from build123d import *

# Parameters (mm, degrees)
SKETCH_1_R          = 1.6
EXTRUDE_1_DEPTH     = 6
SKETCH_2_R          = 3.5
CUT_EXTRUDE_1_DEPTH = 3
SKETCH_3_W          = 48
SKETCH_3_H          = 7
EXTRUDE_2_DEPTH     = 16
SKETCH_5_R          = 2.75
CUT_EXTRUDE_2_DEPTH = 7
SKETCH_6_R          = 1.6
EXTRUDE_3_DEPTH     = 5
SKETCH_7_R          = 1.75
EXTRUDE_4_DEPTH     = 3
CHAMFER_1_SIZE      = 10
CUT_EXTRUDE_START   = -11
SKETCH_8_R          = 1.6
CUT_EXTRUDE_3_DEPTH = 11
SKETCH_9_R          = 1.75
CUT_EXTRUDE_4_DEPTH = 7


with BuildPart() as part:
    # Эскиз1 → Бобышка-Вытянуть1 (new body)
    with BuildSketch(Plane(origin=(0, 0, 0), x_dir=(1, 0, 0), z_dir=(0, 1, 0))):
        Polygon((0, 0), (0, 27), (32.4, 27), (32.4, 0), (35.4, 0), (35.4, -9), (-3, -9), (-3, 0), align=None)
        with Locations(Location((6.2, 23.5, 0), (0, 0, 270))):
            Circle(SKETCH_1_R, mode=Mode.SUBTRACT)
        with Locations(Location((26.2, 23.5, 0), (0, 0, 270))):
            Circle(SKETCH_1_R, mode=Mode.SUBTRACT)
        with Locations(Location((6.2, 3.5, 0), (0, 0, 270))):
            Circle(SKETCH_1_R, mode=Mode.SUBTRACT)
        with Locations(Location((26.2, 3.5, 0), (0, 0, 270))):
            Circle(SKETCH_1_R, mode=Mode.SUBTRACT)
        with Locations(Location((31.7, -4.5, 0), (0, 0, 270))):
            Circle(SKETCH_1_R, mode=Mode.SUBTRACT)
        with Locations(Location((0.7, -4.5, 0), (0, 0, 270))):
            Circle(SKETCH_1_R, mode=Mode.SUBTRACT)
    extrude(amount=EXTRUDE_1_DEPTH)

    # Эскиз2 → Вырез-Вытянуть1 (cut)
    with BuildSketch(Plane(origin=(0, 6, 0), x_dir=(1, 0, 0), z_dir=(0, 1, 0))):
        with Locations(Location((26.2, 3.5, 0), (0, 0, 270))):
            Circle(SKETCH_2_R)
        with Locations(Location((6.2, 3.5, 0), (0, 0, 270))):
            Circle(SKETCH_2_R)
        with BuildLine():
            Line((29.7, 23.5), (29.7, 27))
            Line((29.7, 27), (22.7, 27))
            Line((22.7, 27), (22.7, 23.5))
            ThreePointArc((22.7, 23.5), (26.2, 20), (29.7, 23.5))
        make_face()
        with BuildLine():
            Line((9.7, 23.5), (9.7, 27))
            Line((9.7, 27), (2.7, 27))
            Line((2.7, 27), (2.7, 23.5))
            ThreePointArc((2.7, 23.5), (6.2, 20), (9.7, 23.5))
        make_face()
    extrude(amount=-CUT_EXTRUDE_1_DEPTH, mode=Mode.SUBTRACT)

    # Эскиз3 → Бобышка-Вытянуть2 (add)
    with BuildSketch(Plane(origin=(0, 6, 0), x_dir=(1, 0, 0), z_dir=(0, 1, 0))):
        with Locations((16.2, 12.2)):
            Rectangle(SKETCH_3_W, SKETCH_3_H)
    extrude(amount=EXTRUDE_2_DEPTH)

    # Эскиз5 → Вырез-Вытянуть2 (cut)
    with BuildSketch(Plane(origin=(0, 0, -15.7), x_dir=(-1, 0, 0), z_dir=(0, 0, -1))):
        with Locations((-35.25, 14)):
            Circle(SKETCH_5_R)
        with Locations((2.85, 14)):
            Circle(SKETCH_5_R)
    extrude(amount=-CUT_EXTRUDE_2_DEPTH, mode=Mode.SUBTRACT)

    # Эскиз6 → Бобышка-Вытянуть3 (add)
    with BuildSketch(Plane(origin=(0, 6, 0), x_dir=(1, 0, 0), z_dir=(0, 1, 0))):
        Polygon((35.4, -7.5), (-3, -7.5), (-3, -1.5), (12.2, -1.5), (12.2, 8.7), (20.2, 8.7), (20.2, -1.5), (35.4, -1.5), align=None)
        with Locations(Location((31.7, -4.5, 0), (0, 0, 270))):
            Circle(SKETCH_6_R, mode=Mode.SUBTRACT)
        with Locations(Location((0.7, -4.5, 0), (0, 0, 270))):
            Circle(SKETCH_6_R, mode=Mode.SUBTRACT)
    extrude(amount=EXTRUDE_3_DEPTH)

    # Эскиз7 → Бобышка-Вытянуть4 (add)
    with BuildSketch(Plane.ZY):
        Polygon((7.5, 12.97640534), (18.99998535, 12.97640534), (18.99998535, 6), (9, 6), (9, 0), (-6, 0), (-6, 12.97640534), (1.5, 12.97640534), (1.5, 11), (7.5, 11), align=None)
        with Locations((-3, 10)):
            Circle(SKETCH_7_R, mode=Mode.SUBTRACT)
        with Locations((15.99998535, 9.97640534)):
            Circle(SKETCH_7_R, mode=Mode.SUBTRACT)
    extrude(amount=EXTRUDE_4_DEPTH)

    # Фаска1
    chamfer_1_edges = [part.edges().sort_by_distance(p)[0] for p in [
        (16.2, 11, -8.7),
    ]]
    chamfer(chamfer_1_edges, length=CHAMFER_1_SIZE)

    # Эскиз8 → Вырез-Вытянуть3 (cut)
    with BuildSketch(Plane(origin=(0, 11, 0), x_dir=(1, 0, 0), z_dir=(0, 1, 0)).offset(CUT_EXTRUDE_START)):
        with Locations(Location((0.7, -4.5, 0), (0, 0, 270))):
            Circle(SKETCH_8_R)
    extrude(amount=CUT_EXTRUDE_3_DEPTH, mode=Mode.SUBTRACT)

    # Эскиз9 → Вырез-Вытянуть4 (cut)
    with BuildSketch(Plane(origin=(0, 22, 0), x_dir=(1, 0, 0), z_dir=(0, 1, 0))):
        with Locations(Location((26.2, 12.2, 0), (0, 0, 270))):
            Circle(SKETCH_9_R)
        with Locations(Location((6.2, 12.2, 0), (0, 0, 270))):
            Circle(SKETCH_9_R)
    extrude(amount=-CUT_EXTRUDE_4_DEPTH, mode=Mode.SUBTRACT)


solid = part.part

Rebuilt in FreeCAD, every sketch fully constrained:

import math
import FreeCAD as App
import Part
import Sketcher

V = App.Vector
Q = App.Units.Quantity


def edges_at(feature, points):
    """Names of the edges that pass closest to the given points."""
    edges = feature.Shape.Edges
    near = lambda p: min(range(len(edges)), key=lambda i: edges[i].distToShape(Part.Vertex(*p))[0])
    return sorted({f"Edge{near(p) + 1}" for p in points})


def add_polygon(sketch, points):
    """Adds a closed chain of lines whose ends are joined by coincident constraints."""
    first, n = sketch.GeometryCount, len(points)
    for a, b in zip(points, points[1:] + points[:1]):
        sketch.addGeometry(Part.LineSegment(App.Vector(*a, 0), App.Vector(*b, 0)), False)
    for i in range(n):
        sketch.addConstraint(Sketcher.Constraint("Coincident", first + i, 2, first + (i + 1) % n, 1))

doc = App.newDocument("Part")
body = doc.addObject("PartDesign::Body", "Body")

# Sketch on XZ plane
sketch1 = body.newObject("Sketcher::SketchObject", "Sketch")
sketch1.AttachmentSupport = (doc.getObject("XZ_Plane"), [""])
sketch1.MapMode = "FlatFace"
add_polygon(sketch1, [(0, -27), (0, 0), (-3, 0), (-3, 9), (35.4, 9), (35.4, 0), (32.4, 0), (32.4, -27)])  # lines 0-7
sketch1.addGeometry(Part.Circle(V(31.7, 4.5, 0), V(0, 0, 1), 1.6), False)  # 8
sketch1.addGeometry(Part.Circle(V(26.2, -3.5, 0), V(0, 0, 1), 1.6), False)  # 9
sketch1.addGeometry(Part.Circle(V(0.7, 4.5, 0), V(0, 0, 1), 1.6), False)  # 10
sketch1.addGeometry(Part.Circle(V(6.2, -3.5, 0), V(0, 0, 1), 1.6), False)  # 11
sketch1.addGeometry(Part.Circle(V(26.2, -23.5, 0), V(0, 0, 1), 1.6), False)  # 12
sketch1.addGeometry(Part.Circle(V(6.2, -23.5, 0), V(0, 0, 1), 1.6), False)  # 13
sketch1.addConstraint(Sketcher.Constraint("Vertical", 0))
sketch1.addConstraint(Sketcher.Constraint("Horizontal", 1))
sketch1.addConstraint(Sketcher.Constraint("Vertical", 2))
sketch1.addConstraint(Sketcher.Constraint("Horizontal", 3))
sketch1.addConstraint(Sketcher.Constraint("Vertical", 4))
sketch1.addConstraint(Sketcher.Constraint("Horizontal", 5))
sketch1.addConstraint(Sketcher.Constraint("Vertical", 6))
sketch1.addConstraint(Sketcher.Constraint("Horizontal", 7))
sketch1.addConstraint(Sketcher.Constraint("Coincident", 0, 2, -1, 1))
sketch1.addConstraint(Sketcher.Constraint("Equal", 8, 9))
sketch1.addConstraint(Sketcher.Constraint("Equal", 9, 10))
sketch1.addConstraint(Sketcher.Constraint("Equal", 10, 11))
sketch1.addConstraint(Sketcher.Constraint("Equal", 11, 12))
sketch1.addConstraint(Sketcher.Constraint("Equal", 12, 13))
sketch1.addConstraint(Sketcher.Constraint("PointOnObject", 4, 2, -1))
sketch1.addConstraint(Sketcher.Constraint("Horizontal", 8, 3, 10, 3))
sketch1.addConstraint(Sketcher.Constraint("Horizontal", 9, 3, 11, 3))
sketch1.addConstraint(Sketcher.Constraint("Horizontal", 12, 3, 13, 3))
sketch1.addConstraint(Sketcher.Constraint("Vertical", 9, 3, 12, 3))
sketch1.addConstraint(Sketcher.Constraint("Vertical", 11, 3, 13, 3))
sketch1.addConstraint(Sketcher.Constraint("Equal", 1, 5))
sketch1.addConstraint(Sketcher.Constraint("Diameter", 8, Q("3.2 mm")))
sketch1.addConstraint(Sketcher.Constraint("DistanceX", 1, 2, 1, 1, Q("3 mm")))
sketch1.addConstraint(Sketcher.Constraint("DistanceY", 0, 1, 0, 2, Q("27 mm")))
sketch1.addConstraint(Sketcher.Constraint("DistanceY", 2, 1, 2, 2, Q("9 mm")))
sketch1.addConstraint(Sketcher.Constraint("DistanceX", 3, 1, 3, 2, Q("38.4 mm")))
sketch1.addConstraint(Sketcher.Constraint("DistanceY", 9, 3, 8, 3, Q("8 mm")))
sketch1.addConstraint(Sketcher.Constraint("DistanceX", 10, 3, 8, 3, Q("31 mm")))
sketch1.addConstraint(Sketcher.Constraint("DistanceX", 11, 3, 9, 3, Q("20 mm")))
sketch1.addConstraint(Sketcher.Constraint("DistanceY", 12, 3, 9, 3, Q("20 mm")))
sketch1.addConstraint(Sketcher.Constraint("DistanceX", -1, 1, 8, 3, Q("31.7 mm")))
sketch1.addConstraint(Sketcher.Constraint("DistanceY", -1, 1, 8, 3, Q("4.5 mm")))
sketch1.addConstraint(Sketcher.Constraint("DistanceX", -1, 1, 9, 3, Q("26.2 mm")))
pad1 = body.newObject("PartDesign::Pad", "Pad")
pad1.Profile = sketch1
pad1.Length = 6
pad1.Reversed = True

# Sketch on XZ plane
sketch2 = body.newObject("Sketcher::SketchObject", "Sketch001")
sketch2.AttachmentSupport = (doc.getObject("XZ_Plane"), [""])
sketch2.MapMode = "FlatFace"
sketch2.AttachmentOffset = App.Placement(V(0, 0, -6), App.Rotation())
sketch2.addGeometry(Part.Circle(V(26.2, -3.5, 0), V(0, 0, 1), 3.5), False)
sketch2.addGeometry(Part.Circle(V(6.2, -3.5, 0), V(0, 0, 1), 3.5), False)
sketch2.addGeometry(Part.LineSegment(V(29.7, -23.5, 0), V(29.7, -27, 0)), False)
sketch2.addGeometry(Part.LineSegment(V(29.7, -27, 0), V(22.7, -27, 0)), False)
sketch2.addGeometry(Part.LineSegment(V(22.7, -27, 0), V(22.7, -23.5, 0)), False)
sketch2.addGeometry(Part.ArcOfCircle(Part.Circle(V(26.2, -23.5, 0), V(0, 0, 1), 3.5), math.radians(0), math.radians(180)), False)
sketch2.addGeometry(Part.LineSegment(V(9.7, -23.5, 0), V(9.7, -27, 0)), False)
sketch2.addGeometry(Part.LineSegment(V(9.7, -27, 0), V(2.7, -27, 0)), False)
sketch2.addGeometry(Part.LineSegment(V(2.7, -27, 0), V(2.7, -23.5, 0)), False)
sketch2.addGeometry(Part.ArcOfCircle(Part.Circle(V(6.2, -23.5, 0), V(0, 0, 1), 3.5), math.radians(0), math.radians(180)), False)
sketch2.addConstraint(Sketcher.Constraint("Coincident", 2, 2, 3, 1))
sketch2.addConstraint(Sketcher.Constraint("Coincident", 3, 2, 4, 1))
sketch2.addConstraint(Sketcher.Constraint("Tangent", 4, 2, 5, 2))
sketch2.addConstraint(Sketcher.Constraint("Tangent", 5, 1, 2, 1))
sketch2.addConstraint(Sketcher.Constraint("Coincident", 6, 2, 7, 1))
sketch2.addConstraint(Sketcher.Constraint("Coincident", 7, 2, 8, 1))
sketch2.addConstraint(Sketcher.Constraint("Tangent", 8, 2, 9, 2))
sketch2.addConstraint(Sketcher.Constraint("Tangent", 9, 1, 6, 1))
sketch2.addConstraint(Sketcher.Constraint("Vertical", 2))
sketch2.addConstraint(Sketcher.Constraint("Horizontal", 3))
sketch2.addConstraint(Sketcher.Constraint("Vertical", 4))
sketch2.addConstraint(Sketcher.Constraint("Vertical", 6))
sketch2.addConstraint(Sketcher.Constraint("Horizontal", 7))
sketch2.addConstraint(Sketcher.Constraint("Vertical", 8))
sketch2.addConstraint(Sketcher.Constraint("Equal", 0, 1))
sketch2.addConstraint(Sketcher.Constraint("Equal", 1, 5))
sketch2.addConstraint(Sketcher.Constraint("Equal", 5, 9))
sketch2.addConstraint(Sketcher.Constraint("Horizontal", 0, 3, 1, 3))
sketch2.addConstraint(Sketcher.Constraint("Horizontal", 5, 3, 9, 3))
sketch2.addConstraint(Sketcher.Constraint("Horizontal", 3, 2, 6, 2))
sketch2.addConstraint(Sketcher.Constraint("Vertical", 0, 3, 5, 3))
sketch2.addConstraint(Sketcher.Constraint("Vertical", 1, 3, 9, 3))
sketch2.addConstraint(Sketcher.Constraint("Diameter", 0, Q("7 mm")))
sketch2.addConstraint(Sketcher.Constraint("DistanceY", 2, 2, 2, 1, Q("3.5 mm")))
sketch2.addConstraint(Sketcher.Constraint("DistanceY", 2, 2, -1, 1, Q("27 mm")))
sketch2.addConstraint(Sketcher.Constraint("DistanceX", 1, 3, 0, 3, Q("20 mm")))
sketch2.addConstraint(Sketcher.Constraint("DistanceY", 5, 3, 0, 3, Q("20 mm")))
sketch2.addConstraint(Sketcher.Constraint("DistanceX", -1, 1, 0, 3, Q("26.2 mm")))
pocket1 = body.newObject("PartDesign::Pocket", "Pocket")
pocket1.Profile = sketch2
pocket1.Length = 3
pocket1.Reversed = True

# Sketch on XZ plane
sketch3 = body.newObject("Sketcher::SketchObject", "Sketch002")
sketch3.AttachmentSupport = (doc.getObject("XZ_Plane"), [""])
sketch3.MapMode = "FlatFace"
sketch3.AttachmentOffset = App.Placement(V(0, 0, -6), App.Rotation())
add_polygon(sketch3, [(-7.8, -15.7), (-7.8, -8.7), (40.2, -8.7), (40.2, -15.7)])  # lines 0-3
sketch3.addConstraint(Sketcher.Constraint("Vertical", 0))
sketch3.addConstraint(Sketcher.Constraint("Horizontal", 1))
sketch3.addConstraint(Sketcher.Constraint("Vertical", 2))
sketch3.addConstraint(Sketcher.Constraint("Horizontal", 3))
sketch3.addConstraint(Sketcher.Constraint("DistanceX", 1, 1, 1, 2, Q("48 mm")))
sketch3.addConstraint(Sketcher.Constraint("DistanceY", 0, 1, 0, 2, Q("7 mm")))
sketch3.addConstraint(Sketcher.Constraint("DistanceX", 0, 2, -1, 1, Q("7.8 mm")))
sketch3.addConstraint(Sketcher.Constraint("DistanceY", 0, 2, -1, 1, Q("8.7 mm")))
pad2 = body.newObject("PartDesign::Pad", "Pad001")
pad2.Profile = sketch3
pad2.Length = 16
pad2.Reversed = True

# Sketch on XY plane
sketch4 = body.newObject("Sketcher::SketchObject", "Sketch003")
sketch4.AttachmentSupport = (doc.getObject("XY_Plane"), [""])
sketch4.MapMode = "FlatFace"
sketch4.AttachmentOffset = App.Placement(V(0, 0, -15.7), App.Rotation())
sketch4.addGeometry(Part.Circle(V(35.25, 14, 0), V(0, 0, 1), 2.75), False)
sketch4.addGeometry(Part.Circle(V(-2.85, 14, 0), V(0, 0, 1), 2.75), False)
sketch4.addConstraint(Sketcher.Constraint("Equal", 0, 1))
sketch4.addConstraint(Sketcher.Constraint("Horizontal", 0, 3, 1, 3))
sketch4.addConstraint(Sketcher.Constraint("Diameter", 0, Q("5.5 mm")))
sketch4.addConstraint(Sketcher.Constraint("DistanceY", -1, 1, 0, 3, Q("14 mm")))
sketch4.addConstraint(Sketcher.Constraint("DistanceX", 1, 3, 0, 3, Q("38.1 mm")))
sketch4.addConstraint(Sketcher.Constraint("DistanceX", -1, 1, 0, 3, Q("35.25 mm")))
pocket2 = body.newObject("PartDesign::Pocket", "Pocket001")
pocket2.Profile = sketch4
pocket2.Length = 7
pocket2.Reversed = True

# Sketch on XZ plane
sketch5 = body.newObject("Sketcher::SketchObject", "Sketch004")
sketch5.AttachmentSupport = (doc.getObject("XZ_Plane"), [""])
sketch5.MapMode = "FlatFace"
sketch5.AttachmentOffset = App.Placement(V(0, 0, -6), App.Rotation())
add_polygon(sketch5, [(-3, 7.5), (35.4, 7.5), (35.4, 1.5), (20.2, 1.5), (20.2, -8.7), (12.2, -8.7), (12.2, 1.5), (-3, 1.5)])  # lines 0-7
sketch5.addGeometry(Part.Circle(V(31.7, 4.5, 0), V(0, 0, 1), 1.6), False)  # 8
sketch5.addGeometry(Part.Circle(V(0.7, 4.5, 0), V(0, 0, 1), 1.6), False)  # 9
sketch5.addConstraint(Sketcher.Constraint("Horizontal", 0))
sketch5.addConstraint(Sketcher.Constraint("Vertical", 1))
sketch5.addConstraint(Sketcher.Constraint("Horizontal", 2))
sketch5.addConstraint(Sketcher.Constraint("Vertical", 3))
sketch5.addConstraint(Sketcher.Constraint("Horizontal", 4))
sketch5.addConstraint(Sketcher.Constraint("Vertical", 5))
sketch5.addConstraint(Sketcher.Constraint("Horizontal", 6))
sketch5.addConstraint(Sketcher.Constraint("Vertical", 7))
sketch5.addConstraint(Sketcher.Constraint("Equal", 8, 9))
sketch5.addConstraint(Sketcher.Constraint("Horizontal", 8, 3, 9, 3))
sketch5.addConstraint(Sketcher.Constraint("Horizontal", 2, 2, 5, 2))
sketch5.addConstraint(Sketcher.Constraint("Equal", 2, 6))
sketch5.addConstraint(Sketcher.Constraint("Diameter", 8, Q("3.2 mm")))
sketch5.addConstraint(Sketcher.Constraint("DistanceX", 4, 2, 4, 1, Q("8 mm")))
sketch5.addConstraint(Sketcher.Constraint("DistanceY", 1, 2, 1, 1, Q("6 mm")))
sketch5.addConstraint(Sketcher.Constraint("DistanceX", 0, 1, 0, 2, Q("38.4 mm")))
sketch5.addConstraint(Sketcher.Constraint("DistanceY", 3, 2, 3, 1, Q("10.2 mm")))
sketch5.addConstraint(Sketcher.Constraint("DistanceX", 6, 2, -1, 1, Q("3 mm")))
sketch5.addConstraint(Sketcher.Constraint("DistanceX", 9, 3, 8, 3, Q("31 mm")))
sketch5.addConstraint(Sketcher.Constraint("DistanceY", 8, 3, 0, 2, Q("3 mm")))
sketch5.addConstraint(Sketcher.Constraint("DistanceX", -1, 1, 8, 3, Q("31.7 mm")))
sketch5.addConstraint(Sketcher.Constraint("DistanceY", -1, 1, 8, 3, Q("4.5 mm")))
pad3 = body.newObject("PartDesign::Pad", "Pad002")
pad3.Profile = sketch5
pad3.Length = 5
pad3.Reversed = True

# Sketch on YZ plane
sketch6 = body.newObject("Sketcher::SketchObject", "Sketch005")
sketch6.AttachmentSupport = (doc.getObject("YZ_Plane"), [""])
sketch6.MapMode = "FlatFace"
add_polygon(sketch6, [(12.976405, 18.999985), (12.976405, 7.5), (11, 7.5), (11, 1.5), (12.976405, 1.5), (12.976405, -6), (0, -6), (0, 9), (6, 9), (6, 18.999985)])  # lines 0-9
sketch6.addGeometry(Part.Circle(V(9.976405, 15.999985, 0), V(0, 0, 1), 1.75), False)  # 10
sketch6.addGeometry(Part.Circle(V(10, -3, 0), V(0, 0, 1), 1.75), False)  # 11
sketch6.addConstraint(Sketcher.Constraint("Vertical", 0))
sketch6.addConstraint(Sketcher.Constraint("Horizontal", 1))
sketch6.addConstraint(Sketcher.Constraint("Vertical", 2))
sketch6.addConstraint(Sketcher.Constraint("Horizontal", 3))
sketch6.addConstraint(Sketcher.Constraint("Vertical", 4))
sketch6.addConstraint(Sketcher.Constraint("Horizontal", 5))
sketch6.addConstraint(Sketcher.Constraint("Vertical", 6))
sketch6.addConstraint(Sketcher.Constraint("Horizontal", 7))
sketch6.addConstraint(Sketcher.Constraint("Vertical", 8))
sketch6.addConstraint(Sketcher.Constraint("Horizontal", 9))
sketch6.addConstraint(Sketcher.Constraint("Equal", 10, 11))
sketch6.addConstraint(Sketcher.Constraint("PointOnObject", 5, 2, -2))
sketch6.addConstraint(Sketcher.Constraint("Vertical", 0, 2, 3, 2))
sketch6.addConstraint(Sketcher.Constraint("Equal", 7, 2))
sketch6.addConstraint(Sketcher.Constraint("Diameter", 10, Q("3.5 mm")))
sketch6.addConstraint(Sketcher.Constraint("DistanceX", 7, 1, 7, 2, Q("6 mm")))
sketch6.addConstraint(Sketcher.Constraint("DistanceY", 6, 1, 6, 2, Q("15 mm")))
sketch6.addConstraint(Sketcher.Constraint("DistanceY", 4, 2, 4, 1, Q("7.5 mm")))
sketch6.addConstraint(Sketcher.Constraint("DistanceX", -1, 1, 11, 3, Q("10 mm")))
sketch6.addConstraint(Sketcher.Constraint("DistanceY", 11, 3, -1, 1, Q("3 mm")))
sketch6.addConstraint(Sketcher.Constraint("DistanceX", -1, 1, 1, 2, Q("11 mm")))
sketch6.addConstraint(Sketcher.Constraint("DistanceY", 4, 2, -1, 1, Q("6 mm")))
sketch6.addConstraint(Sketcher.Constraint("DistanceX", 10, 3, 0, 2, Q("3 mm")))
sketch6.addConstraint(Sketcher.Constraint("DistanceY", 10, 3, 8, 2, Q("3 mm")))
sketch6.addConstraint(Sketcher.Constraint("DistanceX", 1, 2, 1, 1, Q("1.976405 mm")))
sketch6.addConstraint(Sketcher.Constraint("DistanceY", 0, 2, 0, 1, Q("11.499985 mm")))
pad4 = body.newObject("PartDesign::Pad", "Pad003")
pad4.Profile = sketch6
pad4.Length = 3
pad4.Reversed = True
doc.recompute()

chamfer = body.newObject("PartDesign::Chamfer", "Chamfer")
chamfer.Base = (pad4, edges_at(pad4, [(16.2, 11, -8.7)]))
chamfer.Size = 10

# Sketch on XZ plane
sketch7 = body.newObject("Sketcher::SketchObject", "Sketch006")
sketch7.AttachmentSupport = (doc.getObject("XZ_Plane"), [""])
sketch7.MapMode = "FlatFace"
sketch7.addGeometry(Part.Circle(V(0.7, 4.5, 0), V(0, 0, 1), 1.6), False)
sketch7.addConstraint(Sketcher.Constraint("Diameter", 0, Q("3.2 mm")))
sketch7.addConstraint(Sketcher.Constraint("DistanceX", -1, 1, 0, 3, Q("0.7 mm")))
sketch7.addConstraint(Sketcher.Constraint("DistanceY", -1, 1, 0, 3, Q("4.5 mm")))
pocket3 = body.newObject("PartDesign::Pocket", "Pocket002")
pocket3.Profile = sketch7
pocket3.Length = 11

# Sketch on XZ plane
sketch8 = body.newObject("Sketcher::SketchObject", "Sketch007")
sketch8.AttachmentSupport = (doc.getObject("XZ_Plane"), [""])
sketch8.MapMode = "FlatFace"
sketch8.AttachmentOffset = App.Placement(V(0, 0, -22), App.Rotation())
sketch8.addGeometry(Part.Circle(V(26.2, -12.2, 0), V(0, 0, 1), 1.75), False)
sketch8.addGeometry(Part.Circle(V(6.2, -12.2, 0), V(0, 0, 1), 1.75), False)
sketch8.addConstraint(Sketcher.Constraint("Equal", 0, 1))
sketch8.addConstraint(Sketcher.Constraint("Horizontal", 0, 3, 1, 3))
sketch8.addConstraint(Sketcher.Constraint("Diameter", 0, Q("3.5 mm")))
sketch8.addConstraint(Sketcher.Constraint("DistanceX", 1, 3, 0, 3, Q("20 mm")))
sketch8.addConstraint(Sketcher.Constraint("DistanceX", -1, 1, 0, 3, Q("26.2 mm")))
sketch8.addConstraint(Sketcher.Constraint("DistanceY", 0, 3, -1, 1, Q("12.2 mm")))
pocket4 = body.newObject("PartDesign::Pocket", "Pocket003")
pocket4.Profile = sketch8
pocket4.Length = 7
pocket4.Reversed = True

doc.recompute()
